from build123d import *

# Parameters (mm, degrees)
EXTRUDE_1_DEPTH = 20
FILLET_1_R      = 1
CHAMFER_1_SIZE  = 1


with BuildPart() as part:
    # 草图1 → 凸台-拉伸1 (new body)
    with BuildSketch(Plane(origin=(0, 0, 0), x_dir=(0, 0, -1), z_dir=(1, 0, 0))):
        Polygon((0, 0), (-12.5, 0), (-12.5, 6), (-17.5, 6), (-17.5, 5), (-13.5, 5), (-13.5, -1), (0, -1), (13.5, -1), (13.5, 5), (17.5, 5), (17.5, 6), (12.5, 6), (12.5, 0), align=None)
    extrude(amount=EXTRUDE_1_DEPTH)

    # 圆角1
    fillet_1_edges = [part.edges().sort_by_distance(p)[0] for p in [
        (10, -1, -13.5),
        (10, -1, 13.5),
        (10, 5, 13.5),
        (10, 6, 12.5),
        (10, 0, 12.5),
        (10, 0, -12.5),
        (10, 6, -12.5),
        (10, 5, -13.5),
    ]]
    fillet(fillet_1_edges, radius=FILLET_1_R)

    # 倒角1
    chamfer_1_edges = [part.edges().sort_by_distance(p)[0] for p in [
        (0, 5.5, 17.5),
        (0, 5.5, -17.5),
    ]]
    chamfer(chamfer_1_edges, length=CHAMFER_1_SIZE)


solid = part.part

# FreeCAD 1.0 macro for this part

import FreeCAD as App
import Part
import Sketcher

V = App.Vector
Q = App.Units.Quantity


def edges_at(feature, points):
    """Names of the edges that pass closest to the given points."""
    edges = feature.Shape.Edges
    near = lambda p: min(range(len(edges)), key=lambda i: edges[i].distToShape(Part.Vertex(*p))[0])
    return sorted({f"Edge{near(p) + 1}" for p in points})

doc = App.newDocument("Part")
body = doc.addObject("PartDesign::Body", "Body")

# Sketch on YZ plane
sketch1 = doc.addObject("Sketcher::SketchObject", "Sketch")
body.addObject(sketch1)
sketch1.AttachmentSupport = (doc.YZ_Plane, [""])
sketch1.MapMode = "FlatFace"
sketch1.addGeometry([
    Part.LineSegment(V(0, 12.5, 0), V(6, 12.5, 0)),  # 0
    Part.LineSegment(V(6, 12.5, 0), V(6, 17.5, 0)),  # 1
    Part.LineSegment(V(6, 17.5, 0), V(5, 17.5, 0)),  # 2
    Part.LineSegment(V(5, 17.5, 0), V(5, 13.5, 0)),  # 3
    Part.LineSegment(V(5, 13.5, 0), V(-1, 13.5, 0)),  # 4
    Part.LineSegment(V(-1, 13.5, 0), V(-1, -13.5, 0)),  # 5
    Part.LineSegment(V(-1, -13.5, 0), V(5, -13.5, 0)),  # 6
    Part.LineSegment(V(5, -13.5, 0), V(5, -17.5, 0)),  # 7
    Part.LineSegment(V(5, -17.5, 0), V(6, -17.5, 0)),  # 8
    Part.LineSegment(V(6, -17.5, 0), V(6, -12.5, 0)),  # 9
    Part.LineSegment(V(6, -12.5, 0), V(0, -12.5, 0)),  # 10
    Part.LineSegment(V(0, -12.5, 0), V(0, 12.5, 0)),  # 11
], False)
sketch1.addConstraint([
    Sketcher.Constraint("Coincident", 0, 2, 1, 1),
    Sketcher.Constraint("Coincident", 1, 2, 2, 1),
    Sketcher.Constraint("Coincident", 2, 2, 3, 1),
    Sketcher.Constraint("Coincident", 3, 2, 4, 1),
    Sketcher.Constraint("Coincident", 4, 2, 5, 1),
    Sketcher.Constraint("Coincident", 5, 2, 6, 1),
    Sketcher.Constraint("Coincident", 6, 2, 7, 1),
    Sketcher.Constraint("Coincident", 7, 2, 8, 1),
    Sketcher.Constraint("Coincident", 8, 2, 9, 1),
    Sketcher.Constraint("Coincident", 9, 2, 10, 1),
    Sketcher.Constraint("Coincident", 10, 2, 11, 1),
    Sketcher.Constraint("Coincident", 11, 2, 0, 1),
    Sketcher.Constraint("Horizontal", 0),
    Sketcher.Constraint("Vertical", 1),
    Sketcher.Constraint("Horizontal", 2),
    Sketcher.Constraint("Vertical", 3),
    Sketcher.Constraint("Horizontal", 4),
    Sketcher.Constraint("Vertical", 5),
    Sketcher.Constraint("Horizontal", 6),
    Sketcher.Constraint("Vertical", 7),
    Sketcher.Constraint("Horizontal", 8),
    Sketcher.Constraint("Vertical", 9),
    Sketcher.Constraint("Horizontal", 10),
    Sketcher.Constraint("Vertical", 11),
    Sketcher.Constraint("Symmetric", 10, 2, 11, 2, -1, 1),
    Sketcher.Constraint("Symmetric", 3, 2, 6, 2, -1),
    Sketcher.Constraint("Symmetric", 1, 2, 8, 2, -1),
    Sketcher.Constraint("Equal", 0, 4),
    Sketcher.Constraint("DistanceX", 0, 1, 0, 2, Q("6 mm")),
    Sketcher.Constraint("DistanceX", 2, 2, 2, 1, Q("1 mm")),
    Sketcher.Constraint("DistanceY", 1, 1, 1, 2, Q("5 mm")),
    Sketcher.Constraint("DistanceY", 3, 2, 3, 1, Q("4 mm")),
    Sketcher.Constraint("DistanceY", 5, 2, 5, 1, Q("27 mm")),
])
pad1 = doc.addObject("PartDesign::Pad", "Pad")
body.addObject(pad1)
pad1.Profile = sketch1
pad1.Length = 20
doc.recompute()

fillet = doc.addObject("PartDesign::Fillet", "Fillet")
body.addObject(fillet)
fillet.Base = (pad1, edges_at(pad1, [
    (10, -1, -13.5),
    (10, -1, 13.5),
    (10, 5, 13.5),
    (10, 6, 12.5),
    (10, 0, 12.5),
    (10, 0, -12.5),
    (10, 6, -12.5),
    (10, 5, -13.5),
]))
fillet.Radius = 1
doc.recompute()

chamfer = doc.addObject("PartDesign::Chamfer", "Chamfer")
body.addObject(chamfer)
chamfer.Base = (fillet, edges_at(fillet, [(0, 5.5, 17.5), (0, 5.5, -17.5)]))
chamfer.Size = 1

doc.recompute()
